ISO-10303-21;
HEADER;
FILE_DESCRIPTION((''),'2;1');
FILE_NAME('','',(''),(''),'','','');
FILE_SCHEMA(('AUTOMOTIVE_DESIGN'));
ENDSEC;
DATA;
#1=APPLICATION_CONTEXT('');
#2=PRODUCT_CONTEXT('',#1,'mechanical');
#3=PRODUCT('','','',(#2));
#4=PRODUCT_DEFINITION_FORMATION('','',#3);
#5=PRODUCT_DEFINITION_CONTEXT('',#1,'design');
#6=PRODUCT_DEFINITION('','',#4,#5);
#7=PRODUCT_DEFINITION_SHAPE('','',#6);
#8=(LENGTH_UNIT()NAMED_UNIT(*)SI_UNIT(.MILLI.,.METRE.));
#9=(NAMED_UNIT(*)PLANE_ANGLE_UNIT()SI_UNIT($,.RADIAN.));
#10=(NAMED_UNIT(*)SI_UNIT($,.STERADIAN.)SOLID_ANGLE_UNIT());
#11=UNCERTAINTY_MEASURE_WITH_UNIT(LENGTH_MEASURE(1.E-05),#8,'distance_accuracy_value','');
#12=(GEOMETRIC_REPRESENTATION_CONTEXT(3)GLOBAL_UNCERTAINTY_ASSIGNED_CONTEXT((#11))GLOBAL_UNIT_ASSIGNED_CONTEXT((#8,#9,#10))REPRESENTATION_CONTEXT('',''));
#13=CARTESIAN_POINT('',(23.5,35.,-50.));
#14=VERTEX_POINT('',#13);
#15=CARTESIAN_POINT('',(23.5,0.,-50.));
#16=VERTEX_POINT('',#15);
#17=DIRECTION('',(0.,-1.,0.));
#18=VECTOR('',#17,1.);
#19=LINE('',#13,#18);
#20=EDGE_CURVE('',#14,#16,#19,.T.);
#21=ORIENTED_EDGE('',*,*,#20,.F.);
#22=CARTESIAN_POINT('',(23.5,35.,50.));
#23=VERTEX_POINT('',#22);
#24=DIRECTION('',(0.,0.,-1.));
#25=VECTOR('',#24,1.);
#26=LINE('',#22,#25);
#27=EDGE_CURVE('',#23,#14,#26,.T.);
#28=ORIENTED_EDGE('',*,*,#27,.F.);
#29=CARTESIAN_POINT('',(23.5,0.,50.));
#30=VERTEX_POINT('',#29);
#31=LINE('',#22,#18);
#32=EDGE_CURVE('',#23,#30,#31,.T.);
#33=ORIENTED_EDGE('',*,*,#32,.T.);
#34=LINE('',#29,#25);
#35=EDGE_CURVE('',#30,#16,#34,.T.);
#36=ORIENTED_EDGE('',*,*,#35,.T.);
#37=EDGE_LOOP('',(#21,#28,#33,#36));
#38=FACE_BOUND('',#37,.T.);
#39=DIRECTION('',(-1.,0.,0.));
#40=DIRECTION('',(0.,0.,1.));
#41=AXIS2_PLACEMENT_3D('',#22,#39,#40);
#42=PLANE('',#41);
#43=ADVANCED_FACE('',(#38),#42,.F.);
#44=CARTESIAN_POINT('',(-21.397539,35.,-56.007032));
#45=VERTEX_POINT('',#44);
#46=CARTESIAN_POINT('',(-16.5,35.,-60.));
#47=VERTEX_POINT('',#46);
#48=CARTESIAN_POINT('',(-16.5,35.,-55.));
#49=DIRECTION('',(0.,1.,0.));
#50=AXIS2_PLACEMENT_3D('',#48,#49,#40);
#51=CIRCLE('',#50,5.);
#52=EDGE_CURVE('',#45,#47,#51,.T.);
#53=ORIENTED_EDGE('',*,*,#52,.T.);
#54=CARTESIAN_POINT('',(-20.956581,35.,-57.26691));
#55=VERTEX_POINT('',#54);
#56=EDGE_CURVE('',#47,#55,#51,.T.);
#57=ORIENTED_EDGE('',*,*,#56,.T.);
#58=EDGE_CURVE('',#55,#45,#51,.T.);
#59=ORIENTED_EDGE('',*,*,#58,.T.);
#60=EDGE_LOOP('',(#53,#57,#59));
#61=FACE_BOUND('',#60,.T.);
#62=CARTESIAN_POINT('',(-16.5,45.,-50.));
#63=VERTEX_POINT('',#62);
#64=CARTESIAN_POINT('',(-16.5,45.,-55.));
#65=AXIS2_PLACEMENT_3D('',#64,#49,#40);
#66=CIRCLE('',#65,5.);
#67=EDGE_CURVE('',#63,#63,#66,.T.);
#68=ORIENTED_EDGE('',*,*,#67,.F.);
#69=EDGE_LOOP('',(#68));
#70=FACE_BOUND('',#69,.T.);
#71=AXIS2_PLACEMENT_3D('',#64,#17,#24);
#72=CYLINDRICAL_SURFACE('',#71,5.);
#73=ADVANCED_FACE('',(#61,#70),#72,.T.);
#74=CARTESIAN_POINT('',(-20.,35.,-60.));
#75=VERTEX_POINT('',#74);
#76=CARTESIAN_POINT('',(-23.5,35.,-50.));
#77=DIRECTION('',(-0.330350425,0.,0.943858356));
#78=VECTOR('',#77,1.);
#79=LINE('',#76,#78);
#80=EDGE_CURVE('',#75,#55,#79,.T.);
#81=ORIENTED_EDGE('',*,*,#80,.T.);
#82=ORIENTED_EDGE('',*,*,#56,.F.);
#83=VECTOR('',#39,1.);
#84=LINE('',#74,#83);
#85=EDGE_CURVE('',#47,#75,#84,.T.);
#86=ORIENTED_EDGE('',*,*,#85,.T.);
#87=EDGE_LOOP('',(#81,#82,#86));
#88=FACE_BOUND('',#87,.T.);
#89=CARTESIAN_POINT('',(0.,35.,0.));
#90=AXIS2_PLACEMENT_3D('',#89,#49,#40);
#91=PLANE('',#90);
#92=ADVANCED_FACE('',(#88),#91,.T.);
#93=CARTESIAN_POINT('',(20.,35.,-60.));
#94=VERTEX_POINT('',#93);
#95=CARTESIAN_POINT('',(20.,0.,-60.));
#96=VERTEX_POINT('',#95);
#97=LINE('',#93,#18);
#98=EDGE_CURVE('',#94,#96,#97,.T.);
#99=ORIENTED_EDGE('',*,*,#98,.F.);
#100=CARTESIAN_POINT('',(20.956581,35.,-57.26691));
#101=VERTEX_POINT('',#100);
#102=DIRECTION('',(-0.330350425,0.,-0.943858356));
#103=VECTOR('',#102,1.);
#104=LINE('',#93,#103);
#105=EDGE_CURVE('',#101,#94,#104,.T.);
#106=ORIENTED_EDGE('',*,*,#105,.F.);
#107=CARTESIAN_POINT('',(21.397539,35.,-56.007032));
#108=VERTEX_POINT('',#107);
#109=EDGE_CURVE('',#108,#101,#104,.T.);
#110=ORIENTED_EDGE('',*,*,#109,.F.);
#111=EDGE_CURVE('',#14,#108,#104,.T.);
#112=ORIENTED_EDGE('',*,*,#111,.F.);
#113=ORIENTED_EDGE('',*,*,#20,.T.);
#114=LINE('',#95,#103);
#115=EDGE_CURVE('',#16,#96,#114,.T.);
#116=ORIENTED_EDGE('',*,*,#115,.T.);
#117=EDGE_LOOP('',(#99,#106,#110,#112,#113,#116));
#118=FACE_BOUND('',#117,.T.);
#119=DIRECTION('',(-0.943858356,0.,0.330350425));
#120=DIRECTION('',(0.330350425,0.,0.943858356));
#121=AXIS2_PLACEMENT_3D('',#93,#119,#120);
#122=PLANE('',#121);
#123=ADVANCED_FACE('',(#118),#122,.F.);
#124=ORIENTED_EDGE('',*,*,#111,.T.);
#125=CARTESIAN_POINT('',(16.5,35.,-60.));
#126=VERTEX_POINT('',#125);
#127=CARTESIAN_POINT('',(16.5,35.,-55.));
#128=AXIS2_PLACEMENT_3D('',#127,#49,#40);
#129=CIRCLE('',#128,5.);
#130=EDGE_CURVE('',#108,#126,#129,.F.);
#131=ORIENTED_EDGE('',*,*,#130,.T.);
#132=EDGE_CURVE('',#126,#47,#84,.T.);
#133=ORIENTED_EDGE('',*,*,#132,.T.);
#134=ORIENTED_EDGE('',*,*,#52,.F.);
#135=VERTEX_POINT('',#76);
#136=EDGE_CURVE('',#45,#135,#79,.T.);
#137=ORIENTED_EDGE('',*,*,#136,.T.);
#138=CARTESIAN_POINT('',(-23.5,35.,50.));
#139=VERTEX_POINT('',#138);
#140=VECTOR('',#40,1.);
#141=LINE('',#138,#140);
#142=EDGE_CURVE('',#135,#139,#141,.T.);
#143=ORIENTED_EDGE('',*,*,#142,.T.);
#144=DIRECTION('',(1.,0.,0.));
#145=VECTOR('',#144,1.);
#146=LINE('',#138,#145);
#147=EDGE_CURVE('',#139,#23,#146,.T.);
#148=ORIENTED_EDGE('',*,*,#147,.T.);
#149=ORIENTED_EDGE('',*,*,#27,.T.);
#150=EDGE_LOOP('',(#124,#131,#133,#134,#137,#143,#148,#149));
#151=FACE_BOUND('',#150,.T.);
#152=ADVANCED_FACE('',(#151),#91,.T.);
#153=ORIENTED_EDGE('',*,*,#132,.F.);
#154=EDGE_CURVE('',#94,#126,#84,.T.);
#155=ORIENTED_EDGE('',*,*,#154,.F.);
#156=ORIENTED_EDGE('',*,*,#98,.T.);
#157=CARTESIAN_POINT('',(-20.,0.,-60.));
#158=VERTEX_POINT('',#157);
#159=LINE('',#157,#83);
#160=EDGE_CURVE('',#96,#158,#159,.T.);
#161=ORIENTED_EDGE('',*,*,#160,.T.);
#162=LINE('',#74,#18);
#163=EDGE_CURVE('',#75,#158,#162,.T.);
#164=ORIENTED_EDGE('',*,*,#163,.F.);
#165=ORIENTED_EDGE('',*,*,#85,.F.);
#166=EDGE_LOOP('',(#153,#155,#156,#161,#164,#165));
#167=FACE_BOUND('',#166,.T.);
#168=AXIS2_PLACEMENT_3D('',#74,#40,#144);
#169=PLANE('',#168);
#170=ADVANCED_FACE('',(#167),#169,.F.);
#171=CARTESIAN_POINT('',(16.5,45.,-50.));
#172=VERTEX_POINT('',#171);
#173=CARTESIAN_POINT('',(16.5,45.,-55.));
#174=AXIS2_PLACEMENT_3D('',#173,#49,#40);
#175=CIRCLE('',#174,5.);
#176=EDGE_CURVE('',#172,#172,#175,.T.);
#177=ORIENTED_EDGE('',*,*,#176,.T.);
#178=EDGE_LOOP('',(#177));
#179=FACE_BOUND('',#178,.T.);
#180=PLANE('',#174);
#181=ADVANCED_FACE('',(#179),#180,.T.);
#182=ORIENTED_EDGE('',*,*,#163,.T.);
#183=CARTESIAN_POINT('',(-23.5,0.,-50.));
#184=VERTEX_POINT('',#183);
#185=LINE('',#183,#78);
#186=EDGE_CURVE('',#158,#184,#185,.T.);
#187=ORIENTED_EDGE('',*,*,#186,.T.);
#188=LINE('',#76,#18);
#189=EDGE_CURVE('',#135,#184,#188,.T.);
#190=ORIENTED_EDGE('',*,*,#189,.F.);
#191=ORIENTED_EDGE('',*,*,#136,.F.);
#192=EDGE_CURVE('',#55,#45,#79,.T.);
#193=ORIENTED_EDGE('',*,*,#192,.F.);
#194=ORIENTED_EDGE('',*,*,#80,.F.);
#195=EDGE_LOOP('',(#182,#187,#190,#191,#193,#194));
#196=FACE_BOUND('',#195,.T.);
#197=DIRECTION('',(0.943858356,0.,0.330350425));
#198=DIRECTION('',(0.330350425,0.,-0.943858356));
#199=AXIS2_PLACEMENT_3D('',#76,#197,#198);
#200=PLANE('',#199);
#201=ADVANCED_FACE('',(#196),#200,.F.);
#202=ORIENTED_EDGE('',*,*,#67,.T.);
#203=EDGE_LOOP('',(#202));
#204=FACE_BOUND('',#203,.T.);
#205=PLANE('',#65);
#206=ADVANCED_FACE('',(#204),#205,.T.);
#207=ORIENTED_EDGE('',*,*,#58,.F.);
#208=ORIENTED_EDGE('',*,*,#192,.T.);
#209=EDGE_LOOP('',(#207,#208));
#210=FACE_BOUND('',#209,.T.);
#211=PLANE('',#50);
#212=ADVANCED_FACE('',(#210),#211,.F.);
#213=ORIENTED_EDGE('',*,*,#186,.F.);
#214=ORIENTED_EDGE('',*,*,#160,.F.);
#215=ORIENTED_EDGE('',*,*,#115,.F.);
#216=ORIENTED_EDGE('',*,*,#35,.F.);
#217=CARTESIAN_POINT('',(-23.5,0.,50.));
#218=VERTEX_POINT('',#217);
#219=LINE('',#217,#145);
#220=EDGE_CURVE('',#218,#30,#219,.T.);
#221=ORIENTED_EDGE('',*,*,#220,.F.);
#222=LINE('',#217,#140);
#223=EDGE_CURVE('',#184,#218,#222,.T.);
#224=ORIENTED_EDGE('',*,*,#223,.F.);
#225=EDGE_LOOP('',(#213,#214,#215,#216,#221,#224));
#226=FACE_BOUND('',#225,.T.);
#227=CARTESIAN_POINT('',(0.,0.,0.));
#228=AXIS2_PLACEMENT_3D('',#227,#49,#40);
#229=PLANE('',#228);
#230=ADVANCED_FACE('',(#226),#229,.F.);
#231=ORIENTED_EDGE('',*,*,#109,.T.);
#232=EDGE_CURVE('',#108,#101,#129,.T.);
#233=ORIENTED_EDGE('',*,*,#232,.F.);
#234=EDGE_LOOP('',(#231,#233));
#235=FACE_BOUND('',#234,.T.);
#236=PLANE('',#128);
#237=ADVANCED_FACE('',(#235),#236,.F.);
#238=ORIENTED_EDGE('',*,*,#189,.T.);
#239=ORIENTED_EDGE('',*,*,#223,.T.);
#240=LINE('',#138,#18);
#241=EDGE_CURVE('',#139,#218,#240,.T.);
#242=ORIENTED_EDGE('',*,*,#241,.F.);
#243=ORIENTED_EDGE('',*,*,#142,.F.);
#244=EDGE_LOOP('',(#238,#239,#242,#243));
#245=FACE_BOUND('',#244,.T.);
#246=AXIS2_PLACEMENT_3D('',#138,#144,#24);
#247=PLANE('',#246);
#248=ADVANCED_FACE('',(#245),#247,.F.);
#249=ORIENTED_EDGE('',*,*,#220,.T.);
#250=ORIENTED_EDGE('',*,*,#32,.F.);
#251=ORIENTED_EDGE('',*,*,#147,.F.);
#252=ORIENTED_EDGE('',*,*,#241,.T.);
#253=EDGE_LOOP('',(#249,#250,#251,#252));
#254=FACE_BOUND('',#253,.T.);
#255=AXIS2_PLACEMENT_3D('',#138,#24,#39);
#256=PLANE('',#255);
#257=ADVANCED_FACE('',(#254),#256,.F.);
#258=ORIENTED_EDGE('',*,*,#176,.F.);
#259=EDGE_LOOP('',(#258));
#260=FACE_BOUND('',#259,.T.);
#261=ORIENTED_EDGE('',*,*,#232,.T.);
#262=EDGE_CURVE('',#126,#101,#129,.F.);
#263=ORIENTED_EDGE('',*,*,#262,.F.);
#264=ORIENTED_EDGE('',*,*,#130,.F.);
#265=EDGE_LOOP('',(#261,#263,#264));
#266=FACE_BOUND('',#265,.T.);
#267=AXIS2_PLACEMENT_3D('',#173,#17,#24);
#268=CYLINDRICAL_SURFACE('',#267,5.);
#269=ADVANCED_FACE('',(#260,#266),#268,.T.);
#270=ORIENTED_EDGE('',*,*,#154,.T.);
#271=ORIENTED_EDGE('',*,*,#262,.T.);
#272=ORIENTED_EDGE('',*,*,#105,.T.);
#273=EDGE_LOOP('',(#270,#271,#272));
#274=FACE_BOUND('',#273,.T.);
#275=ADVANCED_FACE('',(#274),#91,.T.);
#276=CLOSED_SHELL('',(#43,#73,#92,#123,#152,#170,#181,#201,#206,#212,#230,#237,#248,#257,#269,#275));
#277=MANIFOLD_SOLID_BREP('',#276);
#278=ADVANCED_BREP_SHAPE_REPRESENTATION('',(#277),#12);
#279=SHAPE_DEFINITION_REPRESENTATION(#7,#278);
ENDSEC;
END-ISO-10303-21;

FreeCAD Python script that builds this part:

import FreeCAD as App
import Part
import Sketcher
Q = App.Units.Quantity

doc = App.newDocument("Part")
body = doc.addObject("PartDesign::Body", "Body")

sketch1 = body.newObject("Sketcher::SketchObject", "Sketch")
sketch1.AttachmentSupport = (doc.getObject("XZ_Plane"), [""])
sketch1.MapMode = "FlatFace"
sketch1.addGeometry([
    Part.LineSegment(App.Vector(-20, -60, 0), App.Vector(-24, -50, 0)),
    Part.LineSegment(App.Vector(-24, -50, 0), App.Vector(-24, 50, 0)),
    Part.LineSegment(App.Vector(-24, 50, 0), App.Vector(24, 50, 0)),
    Part.LineSegment(App.Vector(24, 50, 0), App.Vector(24, -50, 0)),
    Part.LineSegment(App.Vector(24, -50, 0), App.Vector(20, -60, 0)),
    Part.LineSegment(App.Vector(20, -60, 0), App.Vector(-20, -60, 0)),
], False)
sketch1.addConstraint([
    Sketcher.Constraint("Coincident", 0, 2, 1, 1),
    Sketcher.Constraint("Coincident", 1, 2, 2, 1),
    Sketcher.Constraint("Coincident", 2, 2, 3, 1),
    Sketcher.Constraint("Coincident", 3, 2, 4, 1),
    Sketcher.Constraint("Coincident", 4, 2, 5, 1),
    Sketcher.Constraint("Coincident", 5, 2, 0, 1),
    Sketcher.Constraint("Vertical", 1),
    Sketcher.Constraint("Horizontal", 2),
    Sketcher.Constraint("Vertical", 3),
    Sketcher.Constraint("Horizontal", 5),
    Sketcher.Constraint("Symmetric", 0, 2, 2, 2, -1, 1),
    Sketcher.Constraint("Horizontal", 0, 2, 3, 2),
    Sketcher.Constraint("Equal", 0, 4),
    Sketcher.Constraint("DistanceX", 2, 1, 2, 2, Q("47 mm")),
    Sketcher.Constraint("DistanceX", 5, 2, 5, 1, Q("40 mm")),
    Sketcher.Constraint("DistanceY", 1, 1, 1, 2, Q("100 mm")),
    Sketcher.Constraint("DistanceY", 4, 2, -1, 1, Q("60 mm")),
])
pad1 = body.newObject("PartDesign::Pad", "Pad")
pad1.Profile = sketch1
pad1.Length = 35
pad1.Reversed = True

sketch2 = body.newObject("Sketcher::SketchObject", "Sketch001")
sketch2.AttachmentSupport = (doc.getObject("XZ_Plane"), [""])
sketch2.MapMode = "FlatFace"
sketch2.AttachmentOffset = App.Placement(App.Vector(0, 0, -35), App.Rotation())
sketch2.addGeometry([
    Part.Circle(App.Vector(-16, -55, 0), App.Vector(0, 0, 1), 5),
    Part.Circle(App.Vector(16, -55, 0), App.Vector(0, 0, 1), 5),
], False)
sketch2.addConstraint([
    Sketcher.Constraint("Equal", 0, 1),
    Sketcher.Constraint("Symmetric", 0, 3, 1, 3, -2),
    Sketcher.Constraint("Diameter", 0, Q("10 mm")),
    Sketcher.Constraint("DistanceY", 0, 3, -1, 1, Q("55 mm")),
    Sketcher.Constraint("DistanceX", 0, 3, 1, 3, Q("33 mm")),
])
pad2 = body.newObject("PartDesign::Pad", "Pad001")
pad2.Profile = sketch2
pad2.Length = 10
pad2.Reversed = True

doc.recompute()
